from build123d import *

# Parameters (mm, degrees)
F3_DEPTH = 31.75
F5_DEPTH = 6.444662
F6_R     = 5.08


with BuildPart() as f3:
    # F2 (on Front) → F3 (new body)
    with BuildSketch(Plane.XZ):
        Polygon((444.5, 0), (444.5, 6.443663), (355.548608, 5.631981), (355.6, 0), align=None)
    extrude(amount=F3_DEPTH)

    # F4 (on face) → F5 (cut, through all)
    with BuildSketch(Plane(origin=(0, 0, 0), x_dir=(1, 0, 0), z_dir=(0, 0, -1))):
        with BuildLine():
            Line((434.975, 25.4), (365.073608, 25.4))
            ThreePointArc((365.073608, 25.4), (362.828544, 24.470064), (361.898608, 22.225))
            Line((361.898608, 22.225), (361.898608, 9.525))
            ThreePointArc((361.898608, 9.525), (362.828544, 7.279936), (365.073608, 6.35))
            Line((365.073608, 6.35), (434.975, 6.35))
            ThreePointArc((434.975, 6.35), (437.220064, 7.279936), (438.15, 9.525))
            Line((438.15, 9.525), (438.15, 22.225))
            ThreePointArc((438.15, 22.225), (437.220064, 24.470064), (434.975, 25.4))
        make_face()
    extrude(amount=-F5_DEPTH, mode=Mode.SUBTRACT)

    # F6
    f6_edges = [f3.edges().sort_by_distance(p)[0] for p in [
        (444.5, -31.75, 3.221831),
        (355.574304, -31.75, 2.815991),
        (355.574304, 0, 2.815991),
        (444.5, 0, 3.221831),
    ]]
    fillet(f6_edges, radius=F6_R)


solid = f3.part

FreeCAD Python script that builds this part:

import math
import FreeCAD as App
import Part
import Sketcher
from FreeCAD import Vector
Q = App.Units.Quantity


def edges_at(feature, points):
    """Names of the edges that pass closest to the given points."""
    edges = feature.Shape.Edges
    near = lambda p: min(range(len(edges)), key=lambda i: edges[i].distToShape(Part.Vertex(*p))[0])
    return sorted({f"Edge{near(p) + 1}" for p in points})


def add_polygon(sketch, points):
    """Adds a closed chain of lines whose ends are joined by coincident constraints."""
    first, n = sketch.GeometryCount, len(points)
    for a, b in zip(points, points[1:] + points[:1]):
        sketch.addGeometry(Part.LineSegment(App.Vector(*a, 0), App.Vector(*b, 0)), False)
    for i in range(n):
        sketch.addConstraint(Sketcher.Constraint("Coincident", first + i, 2, first + (i + 1) % n, 1))

doc = App.newDocument("Part")
body = doc.addObject("PartDesign::Body", "Body")

# Sketch on XZ plane
sketch1 = body.newObject("Sketcher::SketchObject", "Sketch")
sketch1.AttachmentSupport = (doc.getObject("XZ_Plane"), [""])
sketch1.MapMode = "FlatFace"
add_polygon(sketch1, [(444.5, 0), (444.5, 6.443663), (355.548608, 5.631981), (355.6, 0)])  # lines 0-3
sketch1.addConstraint(Sketcher.Constraint("Vertical", 0))
sketch1.addConstraint(Sketcher.Constraint("Horizontal", 3))
sketch1.addConstraint(Sketcher.Constraint("PointOnObject", 2, 2, -1))
sketch1.addConstraint(Sketcher.Constraint("Perpendicular", 1, 2))
sketch1.addConstraint(Sketcher.Constraint("DistanceX", 3, 1, 3, 2, Q("3.5 in")))
sketch1.addConstraint(Sketcher.Constraint("DistanceX", -1, 1, 2, 2, Q("14 in")))
sketch1.addConstraint(Sketcher.Constraint("DistanceY", 0, 1, 0, 2, 6.443663))
sketch1.addConstraint(Sketcher.Constraint("DistanceX", -1, 1, 1, 2, 355.548608))
pad1 = body.newObject("PartDesign::Pad", "Pad")
pad1.Profile = sketch1
pad1.Length = Q("1.25 in")

# Sketch on XY plane
sketch2 = body.newObject("Sketcher::SketchObject", "Sketch001")
sketch2.AttachmentSupport = (doc.getObject("XY_Plane"), [""])
sketch2.MapMode = "FlatFace"
sketch2.addGeometry(Part.LineSegment(Vector(434.975, -25.4, 0), Vector(365.073608, -25.4, 0)), False)
sketch2.addGeometry(Part.ArcOfCircle(Part.Circle(Vector(365.073608, -22.225, 0), Vector(0, 0, 1), 3.175), math.radians(-179.999998), math.radians(-90.000002)), False)
sketch2.addGeometry(Part.LineSegment(Vector(361.898608, -22.225, 0), Vector(361.898608, -9.525, 0)), False)
sketch2.addGeometry(Part.ArcOfCircle(Part.Circle(Vector(365.073608, -9.525, 0), Vector(0, 0, 1), 3.175), math.radians(90.000002), math.radians(179.999998)), False)
sketch2.addGeometry(Part.LineSegment(Vector(365.073608, -6.35, 0), Vector(434.975, -6.35, 0)), False)
sketch2.addGeometry(Part.ArcOfCircle(Part.Circle(Vector(434.975, -9.525, 0), Vector(0, 0, 1), 3.175), math.radians(0.000002), math.radians(89.999998)), False)
sketch2.addGeometry(Part.LineSegment(Vector(438.15, -9.525, 0), Vector(438.15, -22.225, 0)), False)
sketch2.addGeometry(Part.ArcOfCircle(Part.Circle(Vector(434.975, -22.225, 0), Vector(0, 0, 1), 3.175), math.radians(-89.999998), math.radians(-0.000002)), False)
sketch2.addConstraint(Sketcher.Constraint("Tangent", 0, 2, 1, 2))
sketch2.addConstraint(Sketcher.Constraint("Tangent", 1, 1, 2, 1))
sketch2.addConstraint(Sketcher.Constraint("Tangent", 2, 2, 3, 2))
sketch2.addConstraint(Sketcher.Constraint("Tangent", 3, 1, 4, 1))
sketch2.addConstraint(Sketcher.Constraint("Tangent", 4, 2, 5, 2))
sketch2.addConstraint(Sketcher.Constraint("Tangent", 5, 1, 6, 1))
sketch2.addConstraint(Sketcher.Constraint("Tangent", 6, 2, 7, 2))
sketch2.addConstraint(Sketcher.Constraint("Tangent", 7, 1, 0, 1))
sketch2.addConstraint(Sketcher.Constraint("Horizontal", 0))
sketch2.addConstraint(Sketcher.Constraint("Vertical", 2))
sketch2.addConstraint(Sketcher.Constraint("Horizontal", 4))
sketch2.addConstraint(Sketcher.Constraint("Vertical", 6))
sketch2.addConstraint(Sketcher.Constraint("Equal", 1, 3))
sketch2.addConstraint(Sketcher.Constraint("Equal", 3, 5))
sketch2.addConstraint(Sketcher.Constraint("Equal", 5, 7))
sketch2.addConstraint(Sketcher.Constraint("DistanceY", 2, 1, 2, 2, Q("0.5 in")))
sketch2.addConstraint(Sketcher.Constraint("DistanceY", 0, 2, -1, 1, Q("1 in")))
sketch2.addConstraint(Sketcher.Constraint("Radius", 1, Q("0.125 in")))
sketch2.addConstraint(Sketcher.Constraint("DistanceX", -1, 1, 5, 1, Q("17.25 in")))
sketch2.addConstraint(Sketcher.Constraint("DistanceX", 0, 2, 0, 1, 69.901392))
pocket1 = body.newObject("PartDesign::Pocket", "Pocket")
pocket1.Profile = sketch2
pocket1.Type = "ThroughAll"
pocket1.Reversed = True
doc.recompute()

fillet = body.newObject("PartDesign::Fillet", "Fillet")
fillet.Base = (pocket1, edges_at(pocket1, [
    (444.5, -31.75, 3.222),
    (355.574, -31.75, 2.816),
    (355.574, 0, 2.816),
    (444.5, 0, 3.222),
]))
fillet.Radius = Q("0.2 in")

doc.recompute()
